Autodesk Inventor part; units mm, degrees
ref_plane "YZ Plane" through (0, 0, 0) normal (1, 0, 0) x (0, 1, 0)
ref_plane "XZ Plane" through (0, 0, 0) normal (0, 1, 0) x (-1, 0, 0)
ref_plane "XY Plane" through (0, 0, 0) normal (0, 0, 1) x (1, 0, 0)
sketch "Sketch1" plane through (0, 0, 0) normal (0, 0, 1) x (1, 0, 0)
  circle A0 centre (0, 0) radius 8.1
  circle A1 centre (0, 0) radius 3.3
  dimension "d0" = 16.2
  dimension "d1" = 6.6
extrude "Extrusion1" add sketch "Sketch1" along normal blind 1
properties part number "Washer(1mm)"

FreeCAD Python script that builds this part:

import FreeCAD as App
import Part
import Sketcher

V = App.Vector
Q = App.Units.Quantity

doc = App.newDocument("Part")
params = doc.addObject("Spreadsheet::Sheet", "Params")
for row, (alias, value) in enumerate([
    ("sketch1_diameter", "16.2 mm"),
    ("sketch1_diameter2", "6.6 mm"),
    ("pad1_length", "1 mm"),
], start=1):
    params.set(f"A{row}", alias)
    params.set(f"B{row}", "=" + value)
    params.setAlias(f"B{row}", alias)

body = doc.addObject("PartDesign::Body", "Body")

# Sketch on XY plane
sketch1 = body.newObject("Sketcher::SketchObject", "Sketch")
sketch1.AttachmentSupport = (doc.getObject("XY_Plane"), [""])
sketch1.MapMode = "FlatFace"
sketch1.addGeometry([
    Part.Circle(V(0, 0, 0), V(0, 0, 1), 8.1),
    Part.Circle(V(0, 0, 0), V(0, 0, 1), 3.3),
], False)
sketch1.addConstraint([
    Sketcher.Constraint("Coincident", 0, 3, -1, 1),
    Sketcher.Constraint("Coincident", 1, 3, -1, 1),
    Sketcher.Constraint("Diameter", 0, Q("16.2 mm")),
    Sketcher.Constraint("Diameter", 1, Q("6.6 mm")),
])
sketch1.setExpression("Constraints[2]", "Params.sketch1_diameter")
sketch1.setExpression("Constraints[3]", "Params.sketch1_diameter2")
pad1 = body.newObject("PartDesign::Pad", "Pad")
pad1.Profile = sketch1
pad1.setExpression("Length", "Params.pad1_length")

doc.recompute()
